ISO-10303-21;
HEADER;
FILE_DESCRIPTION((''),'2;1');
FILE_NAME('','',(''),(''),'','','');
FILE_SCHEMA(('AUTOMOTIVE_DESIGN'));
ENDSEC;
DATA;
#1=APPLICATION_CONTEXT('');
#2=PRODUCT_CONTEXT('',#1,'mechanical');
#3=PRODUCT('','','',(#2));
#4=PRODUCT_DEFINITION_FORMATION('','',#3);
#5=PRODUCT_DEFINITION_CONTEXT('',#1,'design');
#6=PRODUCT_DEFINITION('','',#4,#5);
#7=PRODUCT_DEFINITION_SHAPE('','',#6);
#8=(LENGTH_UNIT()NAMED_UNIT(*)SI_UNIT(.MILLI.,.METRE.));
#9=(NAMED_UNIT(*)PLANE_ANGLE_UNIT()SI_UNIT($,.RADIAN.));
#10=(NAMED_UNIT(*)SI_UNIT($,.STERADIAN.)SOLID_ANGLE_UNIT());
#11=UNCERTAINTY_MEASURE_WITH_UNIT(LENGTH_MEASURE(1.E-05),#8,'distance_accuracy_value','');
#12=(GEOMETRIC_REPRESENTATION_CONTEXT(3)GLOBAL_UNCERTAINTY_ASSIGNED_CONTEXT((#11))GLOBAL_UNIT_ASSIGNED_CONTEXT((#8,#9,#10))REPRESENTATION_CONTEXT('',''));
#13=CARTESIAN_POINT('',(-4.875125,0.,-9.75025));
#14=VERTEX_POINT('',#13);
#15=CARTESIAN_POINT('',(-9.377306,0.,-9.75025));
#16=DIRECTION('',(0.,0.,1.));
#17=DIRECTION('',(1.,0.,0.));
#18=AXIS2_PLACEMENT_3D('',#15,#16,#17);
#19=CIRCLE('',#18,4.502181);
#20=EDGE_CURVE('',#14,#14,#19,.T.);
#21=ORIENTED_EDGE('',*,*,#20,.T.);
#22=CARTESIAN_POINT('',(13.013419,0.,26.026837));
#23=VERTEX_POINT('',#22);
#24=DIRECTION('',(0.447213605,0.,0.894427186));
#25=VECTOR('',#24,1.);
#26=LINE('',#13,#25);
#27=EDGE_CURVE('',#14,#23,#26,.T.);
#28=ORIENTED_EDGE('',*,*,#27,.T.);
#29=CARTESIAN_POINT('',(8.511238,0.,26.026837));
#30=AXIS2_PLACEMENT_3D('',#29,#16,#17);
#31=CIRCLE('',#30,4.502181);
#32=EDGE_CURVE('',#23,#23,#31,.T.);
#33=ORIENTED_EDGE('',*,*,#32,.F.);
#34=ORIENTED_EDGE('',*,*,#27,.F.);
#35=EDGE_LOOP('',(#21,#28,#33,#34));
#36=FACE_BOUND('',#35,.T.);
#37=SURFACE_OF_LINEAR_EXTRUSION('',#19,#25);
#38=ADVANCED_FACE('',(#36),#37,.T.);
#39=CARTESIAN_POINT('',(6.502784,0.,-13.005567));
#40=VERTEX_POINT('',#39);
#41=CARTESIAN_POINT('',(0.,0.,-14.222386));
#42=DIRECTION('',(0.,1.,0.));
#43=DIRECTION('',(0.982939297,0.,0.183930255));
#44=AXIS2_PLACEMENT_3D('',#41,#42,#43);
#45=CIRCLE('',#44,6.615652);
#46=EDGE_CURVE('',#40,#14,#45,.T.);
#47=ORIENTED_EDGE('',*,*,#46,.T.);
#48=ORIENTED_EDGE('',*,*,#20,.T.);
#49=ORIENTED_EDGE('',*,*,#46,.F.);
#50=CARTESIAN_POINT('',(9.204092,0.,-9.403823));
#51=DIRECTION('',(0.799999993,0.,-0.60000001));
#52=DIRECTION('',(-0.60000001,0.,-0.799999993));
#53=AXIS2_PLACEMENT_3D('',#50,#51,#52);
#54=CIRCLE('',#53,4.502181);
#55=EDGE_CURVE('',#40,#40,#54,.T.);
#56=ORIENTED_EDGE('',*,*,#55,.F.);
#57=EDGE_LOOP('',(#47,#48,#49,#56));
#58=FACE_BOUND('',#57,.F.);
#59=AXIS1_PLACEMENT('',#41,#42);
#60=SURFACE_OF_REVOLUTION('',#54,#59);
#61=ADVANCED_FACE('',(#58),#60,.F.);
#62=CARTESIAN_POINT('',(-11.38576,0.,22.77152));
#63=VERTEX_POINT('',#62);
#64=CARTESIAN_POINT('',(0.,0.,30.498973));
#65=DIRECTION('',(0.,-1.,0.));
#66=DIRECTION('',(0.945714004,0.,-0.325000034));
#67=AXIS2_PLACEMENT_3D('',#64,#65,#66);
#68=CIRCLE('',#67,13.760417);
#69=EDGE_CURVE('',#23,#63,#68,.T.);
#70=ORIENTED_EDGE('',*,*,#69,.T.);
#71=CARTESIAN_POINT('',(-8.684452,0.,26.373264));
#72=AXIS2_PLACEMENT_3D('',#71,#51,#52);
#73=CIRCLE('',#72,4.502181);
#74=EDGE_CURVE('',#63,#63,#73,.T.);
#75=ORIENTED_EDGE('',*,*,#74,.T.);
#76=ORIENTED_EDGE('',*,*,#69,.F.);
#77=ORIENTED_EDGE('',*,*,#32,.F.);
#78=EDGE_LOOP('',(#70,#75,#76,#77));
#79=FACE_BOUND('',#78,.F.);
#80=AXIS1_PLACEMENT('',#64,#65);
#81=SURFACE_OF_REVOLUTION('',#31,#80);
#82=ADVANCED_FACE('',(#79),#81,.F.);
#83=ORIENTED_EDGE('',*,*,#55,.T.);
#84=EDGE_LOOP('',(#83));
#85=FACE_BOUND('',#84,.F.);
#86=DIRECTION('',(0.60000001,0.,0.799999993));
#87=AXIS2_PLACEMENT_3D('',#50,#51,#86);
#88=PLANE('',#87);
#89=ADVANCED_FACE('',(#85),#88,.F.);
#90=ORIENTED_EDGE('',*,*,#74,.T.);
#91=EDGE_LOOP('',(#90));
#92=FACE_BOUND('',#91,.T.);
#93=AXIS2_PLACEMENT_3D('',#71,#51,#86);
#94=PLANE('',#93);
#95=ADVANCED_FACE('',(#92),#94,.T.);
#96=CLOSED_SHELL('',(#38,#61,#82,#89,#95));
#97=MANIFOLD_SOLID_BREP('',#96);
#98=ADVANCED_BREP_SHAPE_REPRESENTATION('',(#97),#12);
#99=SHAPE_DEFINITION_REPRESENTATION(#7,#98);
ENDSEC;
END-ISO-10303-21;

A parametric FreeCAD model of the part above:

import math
import FreeCAD as App
import Part
import Sketcher
Q = App.Units.Quantity

doc = App.newDocument("Part")
body = doc.addObject("PartDesign::Body", "Body")

sketch1 = body.newObject("Sketcher::SketchObject", "Sketch")
sketch1.AttachmentSupport = (doc.getObject("XY_Plane"), [""])
sketch1.MapMode = "FlatFace"
sketch1.addGeometry(Part.Circle(App.Vector(-4.5, 0, 0), App.Vector(0, 0, 1), 4.5), False)
sketch1.addConstraint([
    Sketcher.Constraint("PointOnObject", 0, 3, -1),
    Sketcher.Constraint("Diameter", 0, Q("9.004362 mm")),
    Sketcher.Constraint("DistanceX", 0, 3, -1, 1, Q("4.502181 mm")),
])

sketch2 = body.newObject("Sketcher::SketchObject", "Sketch001")
sketch2.AttachmentSupport = (doc.getObject("XZ_Plane"), [""])
sketch2.MapMode = "FlatFace"
sketch2.addGeometry([
    Part.ArcOfCircle(Part.Circle(App.Vector(0, -14, 0), App.Vector(0, 0, 1), 10), math.radians(153), math.radians(387)),
    Part.LineSegment(App.Vector(-9, -10, 0), App.Vector(9, 26, 0)),
    Part.ArcOfCircle(Part.Circle(App.Vector(0, 30, 0), App.Vector(0, 0, 1), 10), math.radians(-27), math.radians(207)),
], False)
sketch2.addConstraint([
    Sketcher.Constraint("Tangent", 0, 1, 1, 1),
    Sketcher.Constraint("Tangent", 1, 2, 2, 1),
    Sketcher.Constraint("Equal", 0, 2),
    Sketcher.Constraint("Symmetric", 0, 1, 0, 2, -2),
    Sketcher.Constraint("Symmetric", 1, 2, 2, 2, -2),
    Sketcher.Constraint("Radius", 0, Q("10 mm")),
    Sketcher.Constraint("Distance", 1, Q("40 mm")),
    Sketcher.Constraint("DistanceY", 0, 1, -1, 1, Q("9.75025 mm")),
])
doc.recompute()

additivepipe = body.newObject("PartDesign::AdditivePipe", "AdditivePipe")
additivepipe.Profile = sketch1
additivepipe.Spine = (sketch2, ["Edge1", "Edge2", "Edge3"])

doc.recompute()
